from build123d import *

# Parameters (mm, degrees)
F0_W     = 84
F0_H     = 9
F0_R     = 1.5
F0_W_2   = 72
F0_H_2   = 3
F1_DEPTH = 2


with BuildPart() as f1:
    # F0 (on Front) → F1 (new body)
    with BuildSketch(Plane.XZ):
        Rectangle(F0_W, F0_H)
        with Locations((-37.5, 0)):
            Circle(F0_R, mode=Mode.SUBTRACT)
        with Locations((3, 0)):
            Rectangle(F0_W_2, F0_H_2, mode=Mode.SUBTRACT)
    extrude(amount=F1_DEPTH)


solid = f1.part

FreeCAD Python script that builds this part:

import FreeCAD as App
import Part
import Sketcher
Q = App.Units.Quantity

doc = App.newDocument("Part")
body = doc.addObject("PartDesign::Body", "Body")

# Sketch on XZ plane
sketch1 = doc.addObject("Sketcher::SketchObject", "Sketch")
body.addObject(sketch1)
sketch1.AttachmentSupport = (doc.XZ_Plane, [""])
sketch1.MapMode = "FlatFace"
sketch1.addGeometry([
    Part.LineSegment(App.Vector(-42, 4.5, 0), App.Vector(-42, -4.5, 0)),  # 0
    Part.LineSegment(App.Vector(-42, -4.5, 0), App.Vector(42, -4.5, 0)),  # 1
    Part.LineSegment(App.Vector(42, -4.5, 0), App.Vector(42, 4.5, 0)),  # 2
    Part.LineSegment(App.Vector(42, 4.5, 0), App.Vector(-42, 4.5, 0)),  # 3
    Part.Circle(App.Vector(-37.5, 0, 0), App.Vector(0, 0, 1), 1.5),  # 4
    Part.LineSegment(App.Vector(39, -1.5, 0), App.Vector(-33, -1.5, 0)),  # 5
    Part.LineSegment(App.Vector(-33, -1.5, 0), App.Vector(-33, 1.5, 0)),  # 6
    Part.LineSegment(App.Vector(-33, 1.5, 0), App.Vector(39, 1.5, 0)),  # 7
    Part.LineSegment(App.Vector(39, 1.5, 0), App.Vector(39, -1.5, 0)),  # 8
], False)
sketch1.addConstraint([
    Sketcher.Constraint("Coincident", 0, 2, 1, 1),
    Sketcher.Constraint("Coincident", 1, 2, 2, 1),
    Sketcher.Constraint("Coincident", 2, 2, 3, 1),
    Sketcher.Constraint("Coincident", 3, 2, 0, 1),
    Sketcher.Constraint("Coincident", 5, 2, 6, 1),
    Sketcher.Constraint("Coincident", 6, 2, 7, 1),
    Sketcher.Constraint("Coincident", 7, 2, 8, 1),
    Sketcher.Constraint("Coincident", 8, 2, 5, 1),
    Sketcher.Constraint("Vertical", 0),
    Sketcher.Constraint("Horizontal", 1),
    Sketcher.Constraint("Vertical", 2),
    Sketcher.Constraint("Horizontal", 3),
    Sketcher.Constraint("Horizontal", 5),
    Sketcher.Constraint("Vertical", 6),
    Sketcher.Constraint("Horizontal", 7),
    Sketcher.Constraint("Vertical", 8),
    Sketcher.Constraint("Symmetric", 0, 2, 2, 2, -1, 1),
    Sketcher.Constraint("PointOnObject", 4, 3, -1),
    Sketcher.Constraint("Diameter", 4, Q("3 mm")),
    Sketcher.Constraint("DistanceX", 1, 1, 1, 2, Q("84 mm")),
    Sketcher.Constraint("DistanceX", 5, 2, 5, 1, Q("72 mm")),
    Sketcher.Constraint("DistanceY", 0, 2, 0, 1, Q("9 mm")),
    Sketcher.Constraint("DistanceY", 6, 1, 6, 2, Q("3 mm")),
    Sketcher.Constraint("DistanceX", 5, 2, -1, 1, Q("33 mm")),
    Sketcher.Constraint("DistanceY", 0, 2, 5, 2, Q("3 mm")),
    Sketcher.Constraint("DistanceX", 4, 3, -1, 1, Q("37.5 mm")),
])
pad1 = doc.addObject("PartDesign::Pad", "Pad")
body.addObject(pad1)
pad1.Profile = sketch1
pad1.Length = 2

doc.recompute()
